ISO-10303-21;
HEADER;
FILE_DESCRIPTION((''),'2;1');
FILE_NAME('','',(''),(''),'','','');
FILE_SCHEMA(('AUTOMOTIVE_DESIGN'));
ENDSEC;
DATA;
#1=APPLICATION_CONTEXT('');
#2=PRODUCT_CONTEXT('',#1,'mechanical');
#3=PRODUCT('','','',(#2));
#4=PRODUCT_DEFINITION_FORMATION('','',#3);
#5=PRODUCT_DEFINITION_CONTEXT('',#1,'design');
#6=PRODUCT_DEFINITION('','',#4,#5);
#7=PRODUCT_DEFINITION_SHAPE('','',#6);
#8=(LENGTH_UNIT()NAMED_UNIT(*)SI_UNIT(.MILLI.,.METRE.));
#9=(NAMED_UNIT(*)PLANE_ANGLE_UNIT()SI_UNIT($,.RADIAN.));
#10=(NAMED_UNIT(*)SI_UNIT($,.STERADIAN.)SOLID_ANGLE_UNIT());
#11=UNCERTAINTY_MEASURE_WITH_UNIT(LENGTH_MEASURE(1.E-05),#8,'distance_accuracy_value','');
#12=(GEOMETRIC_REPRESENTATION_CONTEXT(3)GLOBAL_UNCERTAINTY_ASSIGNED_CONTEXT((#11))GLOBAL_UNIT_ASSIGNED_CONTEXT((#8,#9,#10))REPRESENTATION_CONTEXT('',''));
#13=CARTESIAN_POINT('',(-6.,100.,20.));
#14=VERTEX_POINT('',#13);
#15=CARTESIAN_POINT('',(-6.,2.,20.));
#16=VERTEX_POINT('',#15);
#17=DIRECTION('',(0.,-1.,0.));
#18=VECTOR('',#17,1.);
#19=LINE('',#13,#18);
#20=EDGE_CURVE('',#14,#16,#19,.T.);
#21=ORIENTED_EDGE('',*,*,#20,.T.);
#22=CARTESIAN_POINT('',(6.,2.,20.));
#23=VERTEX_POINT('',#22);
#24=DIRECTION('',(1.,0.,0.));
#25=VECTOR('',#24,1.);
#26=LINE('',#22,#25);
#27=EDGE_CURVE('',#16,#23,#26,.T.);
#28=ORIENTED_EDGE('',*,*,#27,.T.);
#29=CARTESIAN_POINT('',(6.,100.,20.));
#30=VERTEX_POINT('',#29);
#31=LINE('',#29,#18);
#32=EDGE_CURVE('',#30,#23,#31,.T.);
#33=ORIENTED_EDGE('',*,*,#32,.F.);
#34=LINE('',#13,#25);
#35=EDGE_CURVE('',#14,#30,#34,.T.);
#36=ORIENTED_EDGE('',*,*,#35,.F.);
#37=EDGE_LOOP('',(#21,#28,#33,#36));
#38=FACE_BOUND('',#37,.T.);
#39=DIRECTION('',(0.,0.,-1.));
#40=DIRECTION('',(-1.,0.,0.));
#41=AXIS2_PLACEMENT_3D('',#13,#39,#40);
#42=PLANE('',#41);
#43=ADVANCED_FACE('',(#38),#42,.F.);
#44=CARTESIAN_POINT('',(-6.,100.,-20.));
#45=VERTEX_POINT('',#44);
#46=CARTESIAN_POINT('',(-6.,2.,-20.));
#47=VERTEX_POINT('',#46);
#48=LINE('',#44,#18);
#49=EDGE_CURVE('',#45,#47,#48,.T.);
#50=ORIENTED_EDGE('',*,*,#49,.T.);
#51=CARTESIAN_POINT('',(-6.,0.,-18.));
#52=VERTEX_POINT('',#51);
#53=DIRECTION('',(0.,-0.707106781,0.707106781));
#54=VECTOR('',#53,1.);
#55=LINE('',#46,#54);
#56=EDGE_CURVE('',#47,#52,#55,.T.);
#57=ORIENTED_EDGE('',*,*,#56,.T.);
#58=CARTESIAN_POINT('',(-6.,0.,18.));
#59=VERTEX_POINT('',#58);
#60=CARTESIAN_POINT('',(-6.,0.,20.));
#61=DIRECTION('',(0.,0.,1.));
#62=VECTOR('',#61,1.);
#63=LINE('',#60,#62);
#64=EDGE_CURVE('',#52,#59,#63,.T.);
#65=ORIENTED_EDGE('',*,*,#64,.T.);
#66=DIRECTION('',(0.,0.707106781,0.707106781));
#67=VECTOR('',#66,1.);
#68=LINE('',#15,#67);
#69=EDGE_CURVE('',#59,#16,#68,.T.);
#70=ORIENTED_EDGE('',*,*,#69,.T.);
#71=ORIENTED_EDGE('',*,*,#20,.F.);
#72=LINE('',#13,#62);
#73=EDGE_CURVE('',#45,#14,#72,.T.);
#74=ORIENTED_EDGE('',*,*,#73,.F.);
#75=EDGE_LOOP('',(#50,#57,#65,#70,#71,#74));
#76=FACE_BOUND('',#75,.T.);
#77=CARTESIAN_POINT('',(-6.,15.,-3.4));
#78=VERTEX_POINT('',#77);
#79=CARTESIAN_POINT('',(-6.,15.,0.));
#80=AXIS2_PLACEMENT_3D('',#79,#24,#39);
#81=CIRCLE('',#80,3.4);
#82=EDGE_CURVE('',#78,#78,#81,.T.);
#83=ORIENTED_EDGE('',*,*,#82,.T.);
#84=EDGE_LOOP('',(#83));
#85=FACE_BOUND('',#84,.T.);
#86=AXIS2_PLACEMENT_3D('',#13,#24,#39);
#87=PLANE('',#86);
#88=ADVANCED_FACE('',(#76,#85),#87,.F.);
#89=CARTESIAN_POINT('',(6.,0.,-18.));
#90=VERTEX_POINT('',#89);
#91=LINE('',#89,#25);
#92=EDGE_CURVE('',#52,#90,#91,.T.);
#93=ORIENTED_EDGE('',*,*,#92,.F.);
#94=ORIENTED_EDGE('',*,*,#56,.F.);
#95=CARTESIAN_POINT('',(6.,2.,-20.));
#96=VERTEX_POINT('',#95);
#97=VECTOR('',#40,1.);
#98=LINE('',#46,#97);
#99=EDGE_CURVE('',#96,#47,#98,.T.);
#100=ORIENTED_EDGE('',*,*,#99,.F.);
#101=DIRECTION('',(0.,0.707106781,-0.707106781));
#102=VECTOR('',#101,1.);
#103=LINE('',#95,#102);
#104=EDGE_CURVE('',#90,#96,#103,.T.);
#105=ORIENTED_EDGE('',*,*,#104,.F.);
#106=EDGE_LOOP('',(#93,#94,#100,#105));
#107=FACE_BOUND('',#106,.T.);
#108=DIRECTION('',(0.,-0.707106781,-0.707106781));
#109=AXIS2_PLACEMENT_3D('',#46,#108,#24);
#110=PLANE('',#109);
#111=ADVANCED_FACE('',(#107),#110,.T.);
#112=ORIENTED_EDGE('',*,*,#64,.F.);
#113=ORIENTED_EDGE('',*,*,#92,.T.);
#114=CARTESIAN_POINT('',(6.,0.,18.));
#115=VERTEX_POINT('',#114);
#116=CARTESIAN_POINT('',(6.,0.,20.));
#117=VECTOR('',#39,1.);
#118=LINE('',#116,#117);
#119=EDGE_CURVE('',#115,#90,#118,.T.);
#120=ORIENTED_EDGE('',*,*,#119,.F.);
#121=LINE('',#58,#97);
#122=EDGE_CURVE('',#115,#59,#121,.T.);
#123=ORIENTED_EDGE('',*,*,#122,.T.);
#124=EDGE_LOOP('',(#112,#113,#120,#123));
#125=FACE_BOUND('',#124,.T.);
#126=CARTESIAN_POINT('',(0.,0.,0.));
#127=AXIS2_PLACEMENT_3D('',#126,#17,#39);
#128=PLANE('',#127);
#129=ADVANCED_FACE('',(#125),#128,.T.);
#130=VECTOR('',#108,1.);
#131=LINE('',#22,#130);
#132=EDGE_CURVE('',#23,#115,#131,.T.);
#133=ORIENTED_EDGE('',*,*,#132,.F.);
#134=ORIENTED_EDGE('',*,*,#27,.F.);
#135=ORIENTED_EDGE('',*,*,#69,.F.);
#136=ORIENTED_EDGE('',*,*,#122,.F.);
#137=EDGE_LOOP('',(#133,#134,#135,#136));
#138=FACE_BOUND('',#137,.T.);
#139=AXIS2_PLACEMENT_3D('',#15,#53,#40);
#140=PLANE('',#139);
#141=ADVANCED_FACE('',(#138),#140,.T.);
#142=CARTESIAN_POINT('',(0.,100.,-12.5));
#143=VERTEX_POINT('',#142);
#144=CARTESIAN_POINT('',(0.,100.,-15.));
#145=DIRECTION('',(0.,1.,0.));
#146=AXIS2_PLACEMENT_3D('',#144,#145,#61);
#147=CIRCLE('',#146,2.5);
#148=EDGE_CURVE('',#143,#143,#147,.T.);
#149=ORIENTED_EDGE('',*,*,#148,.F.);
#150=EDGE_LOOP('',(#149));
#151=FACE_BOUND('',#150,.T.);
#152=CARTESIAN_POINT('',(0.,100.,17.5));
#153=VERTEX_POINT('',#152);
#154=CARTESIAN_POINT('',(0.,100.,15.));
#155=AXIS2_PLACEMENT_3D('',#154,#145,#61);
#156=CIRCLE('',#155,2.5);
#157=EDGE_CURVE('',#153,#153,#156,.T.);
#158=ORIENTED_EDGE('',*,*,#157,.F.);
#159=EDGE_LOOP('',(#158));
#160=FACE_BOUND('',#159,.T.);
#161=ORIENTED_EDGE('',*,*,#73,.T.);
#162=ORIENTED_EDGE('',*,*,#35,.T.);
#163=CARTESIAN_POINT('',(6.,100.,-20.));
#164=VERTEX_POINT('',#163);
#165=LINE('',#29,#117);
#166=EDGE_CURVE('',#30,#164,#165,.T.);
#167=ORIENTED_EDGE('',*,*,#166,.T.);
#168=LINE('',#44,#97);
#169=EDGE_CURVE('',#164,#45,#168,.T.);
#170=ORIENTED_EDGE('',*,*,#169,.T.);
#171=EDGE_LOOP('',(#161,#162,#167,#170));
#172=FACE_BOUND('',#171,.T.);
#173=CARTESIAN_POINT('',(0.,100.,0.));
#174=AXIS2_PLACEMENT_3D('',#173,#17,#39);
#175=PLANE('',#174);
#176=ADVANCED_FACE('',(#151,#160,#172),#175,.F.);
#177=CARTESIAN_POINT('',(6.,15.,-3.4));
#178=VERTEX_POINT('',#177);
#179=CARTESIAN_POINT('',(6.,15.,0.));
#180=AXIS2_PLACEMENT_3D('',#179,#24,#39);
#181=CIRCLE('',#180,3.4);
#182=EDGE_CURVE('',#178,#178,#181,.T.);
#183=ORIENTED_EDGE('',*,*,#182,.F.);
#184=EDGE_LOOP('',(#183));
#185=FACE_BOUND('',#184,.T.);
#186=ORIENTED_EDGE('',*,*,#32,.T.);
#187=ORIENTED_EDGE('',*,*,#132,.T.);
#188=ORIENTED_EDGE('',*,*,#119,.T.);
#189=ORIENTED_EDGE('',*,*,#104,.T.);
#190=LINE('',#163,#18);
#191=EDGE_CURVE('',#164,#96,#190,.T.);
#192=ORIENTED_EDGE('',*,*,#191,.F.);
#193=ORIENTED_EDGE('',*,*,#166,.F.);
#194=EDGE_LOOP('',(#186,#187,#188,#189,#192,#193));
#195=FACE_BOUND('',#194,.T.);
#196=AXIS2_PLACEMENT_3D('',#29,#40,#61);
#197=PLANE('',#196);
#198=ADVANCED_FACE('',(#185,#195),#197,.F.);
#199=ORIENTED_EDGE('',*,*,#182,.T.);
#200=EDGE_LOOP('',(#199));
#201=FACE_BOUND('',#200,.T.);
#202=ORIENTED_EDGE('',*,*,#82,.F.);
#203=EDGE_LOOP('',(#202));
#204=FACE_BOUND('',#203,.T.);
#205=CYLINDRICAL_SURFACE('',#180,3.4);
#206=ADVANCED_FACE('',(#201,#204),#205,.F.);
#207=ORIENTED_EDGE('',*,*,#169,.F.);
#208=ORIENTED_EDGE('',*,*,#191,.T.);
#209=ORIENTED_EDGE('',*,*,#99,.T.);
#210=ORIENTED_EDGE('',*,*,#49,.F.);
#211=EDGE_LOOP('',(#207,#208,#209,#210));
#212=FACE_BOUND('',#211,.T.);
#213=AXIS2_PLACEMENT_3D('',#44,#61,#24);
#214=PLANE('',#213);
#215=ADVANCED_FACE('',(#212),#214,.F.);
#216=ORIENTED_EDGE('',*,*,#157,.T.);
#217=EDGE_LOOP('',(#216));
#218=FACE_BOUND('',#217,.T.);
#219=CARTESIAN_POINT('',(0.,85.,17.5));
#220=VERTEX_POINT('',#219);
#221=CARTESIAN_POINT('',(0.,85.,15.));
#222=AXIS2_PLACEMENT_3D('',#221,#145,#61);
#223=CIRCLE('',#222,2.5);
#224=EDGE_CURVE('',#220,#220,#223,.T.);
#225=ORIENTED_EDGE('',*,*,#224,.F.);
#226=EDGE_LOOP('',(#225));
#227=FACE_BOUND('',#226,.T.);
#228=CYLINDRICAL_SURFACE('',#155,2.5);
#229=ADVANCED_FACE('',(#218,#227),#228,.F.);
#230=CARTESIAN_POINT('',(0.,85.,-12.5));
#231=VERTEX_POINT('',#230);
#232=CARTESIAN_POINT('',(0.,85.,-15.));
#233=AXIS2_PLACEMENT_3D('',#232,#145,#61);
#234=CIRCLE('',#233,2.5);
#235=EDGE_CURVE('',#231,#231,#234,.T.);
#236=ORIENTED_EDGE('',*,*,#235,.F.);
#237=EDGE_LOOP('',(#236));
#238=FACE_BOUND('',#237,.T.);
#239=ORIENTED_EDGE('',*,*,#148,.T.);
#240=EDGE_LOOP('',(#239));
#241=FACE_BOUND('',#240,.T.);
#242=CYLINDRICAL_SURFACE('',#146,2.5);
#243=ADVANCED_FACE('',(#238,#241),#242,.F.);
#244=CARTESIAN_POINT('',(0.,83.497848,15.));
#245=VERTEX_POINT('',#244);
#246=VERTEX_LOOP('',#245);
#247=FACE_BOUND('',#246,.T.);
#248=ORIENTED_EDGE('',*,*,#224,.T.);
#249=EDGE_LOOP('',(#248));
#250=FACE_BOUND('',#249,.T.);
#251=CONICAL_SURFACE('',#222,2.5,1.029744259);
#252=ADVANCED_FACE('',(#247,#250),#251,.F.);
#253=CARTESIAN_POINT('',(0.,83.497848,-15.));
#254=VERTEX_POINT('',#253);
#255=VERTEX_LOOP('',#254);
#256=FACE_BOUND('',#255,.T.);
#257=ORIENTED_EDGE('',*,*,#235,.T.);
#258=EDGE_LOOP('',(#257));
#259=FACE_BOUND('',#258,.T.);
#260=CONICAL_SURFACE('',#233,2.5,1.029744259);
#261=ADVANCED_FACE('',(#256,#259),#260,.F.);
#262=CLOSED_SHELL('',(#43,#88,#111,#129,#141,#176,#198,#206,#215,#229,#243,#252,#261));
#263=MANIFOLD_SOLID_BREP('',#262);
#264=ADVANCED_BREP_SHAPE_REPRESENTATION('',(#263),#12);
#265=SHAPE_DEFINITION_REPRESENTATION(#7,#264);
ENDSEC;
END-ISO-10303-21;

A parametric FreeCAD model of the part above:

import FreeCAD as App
import Part
import Sketcher
from FreeCAD import Vector
Q = App.Units.Quantity


def edges_at(feature, points):
    """Names of the edges that pass closest to the given points."""
    edges = feature.Shape.Edges
    near = lambda p: min(range(len(edges)), key=lambda i: edges[i].distToShape(Part.Vertex(*p))[0])
    return sorted({f"Edge{near(p) + 1}" for p in points})


def add_polygon(sketch, points):
    """Adds a closed chain of lines whose ends are joined by coincident constraints."""
    first, n = sketch.GeometryCount, len(points)
    for a, b in zip(points, points[1:] + points[:1]):
        sketch.addGeometry(Part.LineSegment(App.Vector(*a, 0), App.Vector(*b, 0)), False)
    for i in range(n):
        sketch.addConstraint(Sketcher.Constraint("Coincident", first + i, 2, first + (i + 1) % n, 1))

doc = App.newDocument("Part")
body = doc.addObject("PartDesign::Body", "Body")

sketch1 = body.newObject("Sketcher::SketchObject", "Sketch")
sketch1.AttachmentSupport = (doc.getObject("XZ_Plane"), [""])
sketch1.MapMode = "FlatFace"
add_polygon(sketch1, [(-6, -20), (-6, 20), (6, 20), (6, -20)])
sketch1.addConstraint(Sketcher.Constraint("Vertical", 0))
sketch1.addConstraint(Sketcher.Constraint("Horizontal", 1))
sketch1.addConstraint(Sketcher.Constraint("Vertical", 2))
sketch1.addConstraint(Sketcher.Constraint("Horizontal", 3))
sketch1.addConstraint(Sketcher.Constraint("Symmetric", 0, 2, 2, 2, -1, 1))
sketch1.addConstraint(Sketcher.Constraint("DistanceX", 1, 1, 1, 2, Q("12 mm")))
sketch1.addConstraint(Sketcher.Constraint("DistanceY", 0, 1, 0, 2, Q("40 mm")))
pad1 = body.newObject("PartDesign::Pad", "Pad")
pad1.Profile = sketch1
pad1.Length = 100
pad1.Reversed = True

sketch2 = body.newObject("Sketcher::SketchObject", "Sketch001")
sketch2.AttachmentSupport = (doc.getObject("XZ_Plane"), [""])
sketch2.MapMode = "FlatFace"
sketch2.AttachmentOffset = App.Placement(Vector(0, 0, -100), App.Rotation())
sketch2.addGeometry(Part.Circle(Vector(0, -15, 0), Vector(0, 0, 1), 2.5), False)
sketch2.addGeometry(Part.Circle(Vector(0, 15, 0), Vector(0, 0, 1), 2.5), False)
sketch2.addConstraint(Sketcher.Constraint("Equal", 0, 1))
sketch2.addConstraint(Sketcher.Constraint("Symmetric", 0, 3, 1, 3, -1, 1))
sketch2.addConstraint(Sketcher.Constraint("PointOnObject", 0, 3, -2))
sketch2.addConstraint(Sketcher.Constraint("Diameter", 0, Q("5 mm")))
sketch2.addConstraint(Sketcher.Constraint("DistanceY", 0, 3, -1, 1, Q("15 mm")))
doc.recompute()
hole = body.newObject("PartDesign::Hole", "Hole")
hole.Profile = sketch2
hole.ThreadType = "None"
hole.Diameter = 5
hole.DepthType = "Dimension"
hole.Depth = 15
hole.DrillPoint = "Angled"
hole.DrillPointAngle = 118
hole.Reversed = True

sketch3 = body.newObject("Sketcher::SketchObject", "Sketch002")
sketch3.AttachmentSupport = (doc.getObject("YZ_Plane"), [""])
sketch3.MapMode = "FlatFace"
sketch3.AttachmentOffset = App.Placement(Vector(0, 0, 6), App.Rotation())
sketch3.addGeometry(Part.Circle(Vector(15, 0, 0), Vector(0, 0, 1), 3.4), False)
sketch3.addConstraint(Sketcher.Constraint("PointOnObject", 0, 3, -1))
sketch3.addConstraint(Sketcher.Constraint("Diameter", 0, Q("6.8 mm")))
sketch3.addConstraint(Sketcher.Constraint("DistanceX", -1, 1, 0, 3, Q("15 mm")))
doc.recompute()
hole2 = body.newObject("PartDesign::Hole", "Hole001")
hole2.Profile = sketch3
hole2.ThreadType = "None"
hole2.Diameter = 6.8
hole2.DepthType = "ThroughAll"
doc.recompute()

chamfer = body.newObject("PartDesign::Chamfer", "Chamfer")
chamfer.Base = (hole2, edges_at(hole2, [(0, 0, 20), (0, 0, -20)]))
chamfer.Size = 2

doc.recompute()
